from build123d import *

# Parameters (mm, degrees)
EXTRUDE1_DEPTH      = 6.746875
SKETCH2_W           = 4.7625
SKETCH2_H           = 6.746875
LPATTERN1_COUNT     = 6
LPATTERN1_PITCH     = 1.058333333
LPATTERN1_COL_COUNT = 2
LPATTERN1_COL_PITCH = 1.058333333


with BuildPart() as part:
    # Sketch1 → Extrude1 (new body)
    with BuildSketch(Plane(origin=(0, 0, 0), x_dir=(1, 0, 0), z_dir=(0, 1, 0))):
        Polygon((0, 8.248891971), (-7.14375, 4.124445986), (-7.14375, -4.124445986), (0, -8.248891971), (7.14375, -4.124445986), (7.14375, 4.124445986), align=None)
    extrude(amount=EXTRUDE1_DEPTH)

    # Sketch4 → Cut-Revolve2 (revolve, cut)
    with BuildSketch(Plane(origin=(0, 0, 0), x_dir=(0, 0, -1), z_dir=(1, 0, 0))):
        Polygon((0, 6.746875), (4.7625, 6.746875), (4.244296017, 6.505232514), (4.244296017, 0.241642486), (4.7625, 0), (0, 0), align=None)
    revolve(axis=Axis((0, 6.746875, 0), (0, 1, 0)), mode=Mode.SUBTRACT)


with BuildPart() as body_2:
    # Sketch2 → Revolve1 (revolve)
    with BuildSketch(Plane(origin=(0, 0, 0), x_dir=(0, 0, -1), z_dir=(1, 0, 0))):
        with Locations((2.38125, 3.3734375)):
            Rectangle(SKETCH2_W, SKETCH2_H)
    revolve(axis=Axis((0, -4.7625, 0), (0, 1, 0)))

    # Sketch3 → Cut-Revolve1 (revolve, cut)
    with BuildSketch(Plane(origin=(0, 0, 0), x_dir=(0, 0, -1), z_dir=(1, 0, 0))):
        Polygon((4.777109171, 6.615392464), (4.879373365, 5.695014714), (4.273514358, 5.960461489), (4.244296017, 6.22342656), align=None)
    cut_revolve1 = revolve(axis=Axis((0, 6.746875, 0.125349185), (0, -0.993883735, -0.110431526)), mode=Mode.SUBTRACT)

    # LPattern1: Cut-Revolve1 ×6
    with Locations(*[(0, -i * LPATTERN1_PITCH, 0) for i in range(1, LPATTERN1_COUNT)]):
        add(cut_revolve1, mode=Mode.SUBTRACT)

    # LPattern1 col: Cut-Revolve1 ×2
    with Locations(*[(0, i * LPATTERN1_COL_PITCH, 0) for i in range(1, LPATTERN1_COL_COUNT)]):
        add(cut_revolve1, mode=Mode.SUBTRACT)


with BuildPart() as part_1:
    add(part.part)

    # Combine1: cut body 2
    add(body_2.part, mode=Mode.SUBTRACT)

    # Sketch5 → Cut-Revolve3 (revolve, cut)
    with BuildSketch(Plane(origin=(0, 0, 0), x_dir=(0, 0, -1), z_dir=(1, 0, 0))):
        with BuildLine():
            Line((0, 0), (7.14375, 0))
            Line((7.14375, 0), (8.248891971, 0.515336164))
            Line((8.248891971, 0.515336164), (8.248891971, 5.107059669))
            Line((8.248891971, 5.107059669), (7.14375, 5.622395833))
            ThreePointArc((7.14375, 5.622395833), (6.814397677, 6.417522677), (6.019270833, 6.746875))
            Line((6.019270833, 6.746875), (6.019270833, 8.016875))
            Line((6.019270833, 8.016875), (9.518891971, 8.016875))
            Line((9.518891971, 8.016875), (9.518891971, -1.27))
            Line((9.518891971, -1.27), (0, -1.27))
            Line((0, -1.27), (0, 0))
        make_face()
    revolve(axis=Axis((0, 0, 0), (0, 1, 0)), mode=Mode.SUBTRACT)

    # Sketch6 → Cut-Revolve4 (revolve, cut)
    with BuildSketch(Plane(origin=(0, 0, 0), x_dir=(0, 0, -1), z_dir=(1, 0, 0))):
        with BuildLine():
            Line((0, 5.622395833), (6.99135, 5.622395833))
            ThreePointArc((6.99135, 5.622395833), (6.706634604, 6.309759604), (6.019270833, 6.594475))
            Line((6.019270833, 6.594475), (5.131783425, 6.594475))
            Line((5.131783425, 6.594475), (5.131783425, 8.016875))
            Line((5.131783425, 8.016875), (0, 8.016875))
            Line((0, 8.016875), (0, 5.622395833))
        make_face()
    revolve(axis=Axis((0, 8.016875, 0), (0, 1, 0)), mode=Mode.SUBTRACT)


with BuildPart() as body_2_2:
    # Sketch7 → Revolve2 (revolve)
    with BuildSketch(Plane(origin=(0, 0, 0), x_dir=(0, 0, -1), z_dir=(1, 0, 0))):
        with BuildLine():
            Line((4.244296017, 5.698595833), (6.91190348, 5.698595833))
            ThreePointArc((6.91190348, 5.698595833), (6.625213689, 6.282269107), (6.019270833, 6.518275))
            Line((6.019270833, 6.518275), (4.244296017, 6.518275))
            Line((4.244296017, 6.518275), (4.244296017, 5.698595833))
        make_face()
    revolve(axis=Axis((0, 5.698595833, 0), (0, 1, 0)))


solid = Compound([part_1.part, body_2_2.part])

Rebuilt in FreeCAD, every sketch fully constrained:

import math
import FreeCAD as App
import Part
import Sketcher

V = App.Vector
Q = App.Units.Quantity

doc = App.newDocument("Part")
body = doc.addObject("PartDesign::Body", "Body")

# Sketch on XZ plane
sketch1 = doc.addObject("Sketcher::SketchObject", "Sketch")
body.addObject(sketch1)
sketch1.AttachmentSupport = (doc.XZ_Plane, [""])
sketch1.MapMode = "FlatFace"
sketch1.addGeometry(Part.LineSegment(V(0, -8, 0), V(-7, -4, 0)), False)
sketch1.addGeometry(Part.LineSegment(V(-7, -4, 0), V(-7, 4, 0)), False)
sketch1.addGeometry(Part.LineSegment(V(-7, 4, 0), V(0, 8, 0)), False)
sketch1.addGeometry(Part.LineSegment(V(0, 8, 0), V(7, 4, 0)), False)
sketch1.addGeometry(Part.LineSegment(V(7, 4, 0), V(7, -4, 0)), False)
sketch1.addGeometry(Part.LineSegment(V(7, -4, 0), V(0, -8, 0)), False)
sketch1.addConstraint(Sketcher.Constraint("Coincident", 0, 2, 1, 1))
sketch1.addConstraint(Sketcher.Constraint("Coincident", 1, 2, 2, 1))
sketch1.addConstraint(Sketcher.Constraint("Coincident", 2, 2, 3, 1))
sketch1.addConstraint(Sketcher.Constraint("Coincident", 3, 2, 4, 1))
sketch1.addConstraint(Sketcher.Constraint("Coincident", 4, 2, 5, 1))
sketch1.addConstraint(Sketcher.Constraint("Coincident", 5, 2, 0, 1))
sketch1.addConstraint(Sketcher.Constraint("Vertical", 1))
sketch1.addConstraint(Sketcher.Constraint("Vertical", 4))
sketch1.addConstraint(Sketcher.Constraint("Symmetric", 0, 2, 3, 2, -1, 1))
sketch1.addConstraint(Sketcher.Constraint("Symmetric", 2, 2, 5, 2, -1, 1))
sketch1.addConstraint(Sketcher.Constraint("PointOnObject", 2, 2, -2))
sketch1.addConstraint(Sketcher.Constraint("Parallel", 2, 5))
sketch1.addConstraint(Sketcher.Constraint("Horizontal", 1, 2, 3, 2))
sketch1.addConstraint(Sketcher.Constraint("Angle", 0, Q("150 deg")))
sketch1.addConstraint(Sketcher.Constraint("DistanceX", 0, 2, -1, 1, Q("0.28125 in")))
sketch1.addConstraint(Sketcher.Constraint("DistanceY", 1, 1, 1, 2, Q("8.248892 mm")))
pad1 = doc.addObject("PartDesign::Pad", "Pad")
body.addObject(pad1)
pad1.Profile = sketch1
pad1.Length = Q("0.265625 in")
pad1.Reversed = True

# Sketch on YZ plane
sketch2 = doc.addObject("Sketcher::SketchObject", "Sketch001")
body.addObject(sketch2)
sketch2.AttachmentSupport = (doc.YZ_Plane, [""])
sketch2.MapMode = "FlatFace"
sketch2.addGeometry(Part.LineSegment(V(6.7, -4.8, 0), V(6.7, 0, 0)), False)
sketch2.addGeometry(Part.LineSegment(V(6.7, 0, 0), V(0, 0, 0)), False)
sketch2.addGeometry(Part.LineSegment(V(0, 0, 0), V(0, -4.8, 0)), False)
sketch2.addGeometry(Part.LineSegment(V(0, -4.8, 0), V(0.2, -4.2, 0)), False)
sketch2.addGeometry(Part.LineSegment(V(0.2, -4.2, 0), V(6.5, -4.2, 0)), False)
sketch2.addGeometry(Part.LineSegment(V(6.5, -4.2, 0), V(6.7, -4.8, 0)), False)
sketch2.addConstraint(Sketcher.Constraint("Coincident", 0, 2, 1, 1))
sketch2.addConstraint(Sketcher.Constraint("Coincident", 1, 2, 2, 1))
sketch2.addConstraint(Sketcher.Constraint("Coincident", 2, 2, 3, 1))
sketch2.addConstraint(Sketcher.Constraint("Coincident", 3, 2, 4, 1))
sketch2.addConstraint(Sketcher.Constraint("Coincident", 4, 2, 5, 1))
sketch2.addConstraint(Sketcher.Constraint("Coincident", 5, 2, 0, 1))
sketch2.addConstraint(Sketcher.Constraint("Vertical", 0))
sketch2.addConstraint(Sketcher.Constraint("Horizontal", 1))
sketch2.addConstraint(Sketcher.Constraint("Vertical", 2))
sketch2.addConstraint(Sketcher.Constraint("Horizontal", 4))
sketch2.addConstraint(Sketcher.Constraint("Coincident", 1, 2, -1, 1))
sketch2.addConstraint(Sketcher.Constraint("Horizontal", 2, 2, 5, 2))
sketch2.addConstraint(Sketcher.Constraint("Equal", 3, 5))
sketch2.addConstraint(Sketcher.Constraint("Angle", 3, Q("65 deg")))
sketch2.addConstraint(Sketcher.Constraint("DistanceX", 1, 2, 1, 1, Q("0.265625 in")))
sketch2.addConstraint(Sketcher.Constraint("DistanceY", 0, 1, 0, 2, Q("0.1875 in")))
sketch2.addConstraint(Sketcher.Constraint("DistanceX", 4, 1, 4, 2, Q("6.26359 mm")))
groove = doc.addObject("PartDesign::Groove", "Groove")
body.addObject(groove)
groove.Profile = sketch2
groove.ReferenceAxis = (sketch2, ["H_Axis"])
groove.Angle = 360
body2 = doc.addObject("PartDesign::Body", "Body001")

# Sketch on YZ plane
sketch3 = doc.addObject("Sketcher::SketchObject", "Sketch002")
body2.addObject(sketch3)
sketch3.AttachmentSupport = (doc.getObject("YZ_Plane001"), [""])
sketch3.MapMode = "FlatFace"
sketch3.addGeometry(Part.LineSegment(V(6.7, 0, 0), V(0, 0, 0)), False)
sketch3.addGeometry(Part.LineSegment(V(0, 0, 0), V(0, -4.8, 0)), False)
sketch3.addGeometry(Part.LineSegment(V(0, -4.8, 0), V(6.7, -4.8, 0)), False)
sketch3.addGeometry(Part.LineSegment(V(6.7, -4.8, 0), V(6.7, 0, 0)), False)
sketch3.addConstraint(Sketcher.Constraint("Coincident", 0, 2, 1, 1))
sketch3.addConstraint(Sketcher.Constraint("Coincident", 1, 2, 2, 1))
sketch3.addConstraint(Sketcher.Constraint("Coincident", 2, 2, 3, 1))
sketch3.addConstraint(Sketcher.Constraint("Coincident", 3, 2, 0, 1))
sketch3.addConstraint(Sketcher.Constraint("Horizontal", 0))
sketch3.addConstraint(Sketcher.Constraint("Vertical", 1))
sketch3.addConstraint(Sketcher.Constraint("Horizontal", 2))
sketch3.addConstraint(Sketcher.Constraint("Vertical", 3))
sketch3.addConstraint(Sketcher.Constraint("Coincident", 0, 2, -1, 1))
sketch3.addConstraint(Sketcher.Constraint("DistanceX", 0, 2, 0, 1, Q("0.265625 in")))
sketch3.addConstraint(Sketcher.Constraint("DistanceY", 1, 2, 1, 1, Q("0.1875 in")))
revolution = doc.addObject("PartDesign::Revolution", "Revolution")
body2.addObject(revolution)
revolution.Profile = sketch3
revolution.ReferenceAxis = (sketch3, ["H_Axis"])
revolution.Angle = 360

# Sketch on YZ plane
sketch4 = doc.addObject("Sketcher::SketchObject", "Sketch003")
body2.addObject(sketch4)
sketch4.AttachmentSupport = (doc.getObject("YZ_Plane001"), [""])
sketch4.MapMode = "FlatFace"
sketch4.addGeometry(Part.LineSegment(V(5.7, -4.88, 0), V(6.62, -4.78, 0)), False)
sketch4.addGeometry(Part.LineSegment(V(6.62, -4.78, 0), V(6.22, -4.24, 0)), False)
sketch4.addGeometry(Part.LineSegment(V(6.22, -4.24, 0), V(5.96, -4.27, 0)), False)
sketch4.addGeometry(Part.LineSegment(V(5.96, -4.27, 0), V(5.7, -4.88, 0)), False)
sketch4.addGeometry(Part.LineSegment(V(6.08, 0.05, 0), V(5.16, -0.05, 0)), True)  # axis
sketch4.addConstraint(Sketcher.Constraint("Coincident", 0, 2, 1, 1))
sketch4.addConstraint(Sketcher.Constraint("Coincident", 1, 2, 2, 1))
sketch4.addConstraint(Sketcher.Constraint("Coincident", 2, 2, 3, 1))
sketch4.addConstraint(Sketcher.Constraint("Coincident", 3, 2, 0, 1))
sketch4.addConstraint(Sketcher.Constraint("Parallel", 0, 2))
sketch4.addConstraint(Sketcher.Constraint("Parallel", 2, 4))
sketch4.addConstraint(Sketcher.Constraint("Equal", 1, 3))
sketch4.addConstraint(Sketcher.Constraint("Equal", 0, 4))
sketch4.addConstraint(Sketcher.Constraint("Distance", 0, Q("0.926042 mm")))
sketch4.addConstraint(Sketcher.Constraint("Distance", 1, Q("0.661458 mm")))
sketch4.addConstraint(Sketcher.Constraint("DistanceY", 0, 2, -1, 1, Q("4.777109 mm")))
sketch4.addConstraint(Sketcher.Constraint("DistanceX", -1, 1, 2, 2, Q("5.960461 mm")))
sketch4.addConstraint(Sketcher.Constraint("DistanceX", -1, 1, 4, 1, Q("6.078921 mm")))
sketch4.addConstraint(Sketcher.Constraint("DistanceY", 2, 2, 1, 2, Q("0.029218 mm")))
sketch4.addConstraint(Sketcher.Constraint("DistanceX", 2, 2, 0, 2, Q("0.654931 mm")))
sketch4.addConstraint(Sketcher.Constraint("DistanceY", 1, 2, 4, 1, Q("4.295428 mm")))
groove2 = doc.addObject("PartDesign::Groove", "Groove001")
body2.addObject(groove2)
groove2.Profile = sketch4
groove2.ReferenceAxis = (sketch4, ["Axis0"])
groove2.Angle = 360
doc.recompute()

linearpattern = doc.addObject("PartDesign::LinearPattern", "LinearPattern")
body2.addObject(linearpattern)
linearpattern.Originals = [groove2]
linearpattern.Direction = (doc.getObject("Y_Axis001"), [""])
linearpattern.Mode = "offset"
linearpattern.Offset = 1.058333
linearpattern.Occurrences = 6
linearpattern.Reversed = True
body2.Tip = linearpattern
doc.recompute()

linearpattern2 = doc.addObject("PartDesign::LinearPattern", "LinearPattern001")
body2.addObject(linearpattern2)
linearpattern2.Originals = [groove2]
linearpattern2.Direction = (doc.getObject("Y_Axis001"), [""])
linearpattern2.Mode = "offset"
linearpattern2.Offset = 1.058333
linearpattern2.Occurrences = 2
body2.Tip = linearpattern2
doc.recompute()

boolean = doc.addObject("PartDesign::Boolean", "Boolean")
body.addObject(boolean)
boolean.Type = "Cut"
boolean.addObjects([body2])

# Sketch on YZ plane
sketch5 = doc.addObject("Sketcher::SketchObject", "Sketch004")
body.addObject(sketch5)
sketch5.AttachmentSupport = (doc.YZ_Plane, [""])
sketch5.MapMode = "FlatFace"
sketch5.addGeometry(Part.LineSegment(V(0, -7.1, 0), V(0, 0, 0)), False)
sketch5.addGeometry(Part.LineSegment(V(0, 0, 0), V(-1.3, 0, 0)), False)
sketch5.addGeometry(Part.LineSegment(V(-1.3, 0, 0), V(-1.3, -9.5, 0)), False)
sketch5.addGeometry(Part.LineSegment(V(-1.3, -9.5, 0), V(8, -9.5, 0)), False)
sketch5.addGeometry(Part.LineSegment(V(8, -9.5, 0), V(8, -6, 0)), False)
sketch5.addGeometry(Part.LineSegment(V(8, -6, 0), V(6.7, -6, 0)), False)
sketch5.addGeometry(Part.ArcOfCircle(Part.Circle(V(5.6, -6, 0), V(0, 0, 1), 1.1), math.radians(-90), math.radians(0)), False)
sketch5.addGeometry(Part.LineSegment(V(5.6, -7.1, 0), V(5.1, -8.2, 0)), False)
sketch5.addGeometry(Part.LineSegment(V(5.1, -8.2, 0), V(0.5, -8.2, 0)), False)
sketch5.addGeometry(Part.LineSegment(V(0.5, -8.2, 0), V(0, -7.1, 0)), False)
sketch5.addConstraint(Sketcher.Constraint("Coincident", 0, 2, 1, 1))
sketch5.addConstraint(Sketcher.Constraint("Coincident", 1, 2, 2, 1))
sketch5.addConstraint(Sketcher.Constraint("Coincident", 2, 2, 3, 1))
sketch5.addConstraint(Sketcher.Constraint("Coincident", 3, 2, 4, 1))
sketch5.addConstraint(Sketcher.Constraint("Coincident", 4, 2, 5, 1))
sketch5.addConstraint(Sketcher.Constraint("Coincident", 5, 2, 6, 2))
sketch5.addConstraint(Sketcher.Constraint("Coincident", 6, 1, 7, 1))
sketch5.addConstraint(Sketcher.Constraint("Coincident", 7, 2, 8, 1))
sketch5.addConstraint(Sketcher.Constraint("Coincident", 8, 2, 9, 1))
sketch5.addConstraint(Sketcher.Constraint("Coincident", 9, 2, 0, 1))
sketch5.addConstraint(Sketcher.Constraint("Vertical", 0))
sketch5.addConstraint(Sketcher.Constraint("Horizontal", 1))
sketch5.addConstraint(Sketcher.Constraint("Vertical", 2))
sketch5.addConstraint(Sketcher.Constraint("Horizontal", 3))
sketch5.addConstraint(Sketcher.Constraint("Vertical", 4))
sketch5.addConstraint(Sketcher.Constraint("Horizontal", 5))
sketch5.addConstraint(Sketcher.Constraint("Horizontal", 8))
sketch5.addConstraint(Sketcher.Constraint("Coincident", 0, 2, -1, 1))
sketch5.addConstraint(Sketcher.Constraint("Horizontal", 6, 3, 4, 2))
sketch5.addConstraint(Sketcher.Constraint("Horizontal", 6, 1, 9, 2))
sketch5.addConstraint(Sketcher.Constraint("Equal", 1, 5))
sketch5.addConstraint(Sketcher.Constraint("Equal", 7, 9))
sketch5.addConstraint(Sketcher.Constraint("Angle", 7, Q("-115 deg")))
sketch5.addConstraint(Sketcher.Constraint("DistanceX", 1, 2, 1, 1, Q("0.05 in")))
sketch5.addConstraint(Sketcher.Constraint("DistanceY", 0, 1, 0, 2, Q("0.28125 in")))
sketch5.addConstraint(Sketcher.Constraint("DistanceY", 3, 2, 7, 2, Q("0.05 in")))
sketch5.addConstraint(Sketcher.Constraint("DistanceX", -1, 1, 5, 2, Q("0.265625 in")))
sketch5.addConstraint(Sketcher.Constraint("Radius", 6, Q("1.124479 mm")))
sketch5.addConstraint(Sketcher.Constraint("DistanceY", 2, 2, 2, 1, Q("9.518892 mm")))
sketch5.addConstraint(Sketcher.Constraint("DistanceX", 8, 2, 8, 1, Q("4.591724 mm")))
groove3 = doc.addObject("PartDesign::Groove", "Groove002")
body.addObject(groove3)
groove3.Profile = sketch5
groove3.ReferenceAxis = (sketch5, ["H_Axis"])
groove3.Angle = 360

# Sketch on YZ plane
sketch6 = doc.addObject("Sketcher::SketchObject", "Sketch005")
body.addObject(sketch6)
sketch6.AttachmentSupport = (doc.YZ_Plane, [""])
sketch6.MapMode = "FlatFace"
sketch6.addGeometry(Part.LineSegment(V(5.6, 0, 0), V(5.6, -7, 0)), False)
sketch6.addGeometry(Part.ArcOfCircle(Part.Circle(V(5.6, -6, 0), V(0, 0, 1), 1), math.radians(-90), math.radians(0)), False)
sketch6.addGeometry(Part.LineSegment(V(6.6, -6, 0), V(6.6, -5.1, 0)), False)
sketch6.addGeometry(Part.LineSegment(V(6.6, -5.1, 0), V(8, -5.1, 0)), False)
sketch6.addGeometry(Part.LineSegment(V(8, -5.1, 0), V(8, 0, 0)), False)
sketch6.addGeometry(Part.LineSegment(V(8, 0, 0), V(5.6, 0, 0)), False)
sketch6.addConstraint(Sketcher.Constraint("Coincident", 0, 2, 1, 1))
sketch6.addConstraint(Sketcher.Constraint("Tangent", 1, 2, 2, 1))
sketch6.addConstraint(Sketcher.Constraint("Coincident", 2, 2, 3, 1))
sketch6.addConstraint(Sketcher.Constraint("Coincident", 3, 2, 4, 1))
sketch6.addConstraint(Sketcher.Constraint("Coincident", 4, 2, 5, 1))
sketch6.addConstraint(Sketcher.Constraint("Coincident", 5, 2, 0, 1))
sketch6.addConstraint(Sketcher.Constraint("Vertical", 0))
sketch6.addConstraint(Sketcher.Constraint("Vertical", 2))
sketch6.addConstraint(Sketcher.Constraint("Horizontal", 3))
sketch6.addConstraint(Sketcher.Constraint("Vertical", 4))
sketch6.addConstraint(Sketcher.Constraint("Horizontal", 5))
sketch6.addConstraint(Sketcher.Constraint("PointOnObject", 4, 2, -1))
sketch6.addConstraint(Sketcher.Constraint("Vertical", 1, 3, 0, 2))
sketch6.addConstraint(Sketcher.Constraint("DistanceX", 3, 1, 3, 2, Q("0.056 in")))
sketch6.addConstraint(Sketcher.Constraint("Radius", 1, Q("0.972079 mm")))
sketch6.addConstraint(Sketcher.Constraint("DistanceY", 0, 2, 0, 1, Q("6.99135 mm")))
sketch6.addConstraint(Sketcher.Constraint("DistanceY", 2, 1, 2, 2, Q("0.887487 mm")))
sketch6.addConstraint(Sketcher.Constraint("DistanceX", -1, 1, 1, 3, Q("5.622396 mm")))
groove4 = doc.addObject("PartDesign::Groove", "Groove003")
body.addObject(groove4)
groove4.Profile = sketch6
groove4.ReferenceAxis = (sketch6, ["H_Axis"])
groove4.Angle = 360
body3 = doc.addObject("PartDesign::Body", "Body002")

# Sketch on YZ plane
sketch7 = doc.addObject("Sketcher::SketchObject", "Sketch006")
body3.addObject(sketch7)
sketch7.AttachmentSupport = (doc.getObject("YZ_Plane002"), [""])
sketch7.MapMode = "FlatFace"
sketch7.addGeometry(Part.LineSegment(V(5.7, -4.2, 0), V(5.7, -6.9, 0)), False)
sketch7.addGeometry(Part.ArcOfCircle(Part.Circle(V(5.6, -6, 0), V(0, 0, 1), 0.9), math.radians(-85), math.radians(0)), False)
sketch7.addGeometry(Part.LineSegment(V(6.5, -6, 0), V(6.5, -4.2, 0)), False)
sketch7.addGeometry(Part.LineSegment(V(6.5, -4.2, 0), V(5.7, -4.2, 0)), False)
sketch7.addConstraint(Sketcher.Constraint("Coincident", 0, 2, 1, 1))
sketch7.addConstraint(Sketcher.Constraint("Tangent", 1, 2, 2, 1))
sketch7.addConstraint(Sketcher.Constraint("Coincident", 2, 2, 3, 1))
sketch7.addConstraint(Sketcher.Constraint("Coincident", 3, 2, 0, 1))
sketch7.addConstraint(Sketcher.Constraint("Vertical", 0))
sketch7.addConstraint(Sketcher.Constraint("Vertical", 2))
sketch7.addConstraint(Sketcher.Constraint("Horizontal", 3))
sketch7.addConstraint(Sketcher.Constraint("Radius", 1, Q("0.895879 mm")))
sketch7.addConstraint(Sketcher.Constraint("DistanceX", 1, 3, 0, 2, Q("0.003 in")))
sketch7.addConstraint(Sketcher.Constraint("DistanceY", 0, 2, 0, 1, Q("2.667607 mm")))
sketch7.addConstraint(Sketcher.Constraint("DistanceY", 1, 3, -1, 1, Q("6.019271 mm")))
sketch7.addConstraint(Sketcher.Constraint("DistanceX", -1, 1, 1, 3, Q("5.622396 mm")))
revolution2 = doc.addObject("PartDesign::Revolution", "Revolution001")
body3.addObject(revolution2)
revolution2.Profile = sketch7
revolution2.ReferenceAxis = (sketch7, ["H_Axis"])
revolution2.Angle = 360

doc.recompute()
